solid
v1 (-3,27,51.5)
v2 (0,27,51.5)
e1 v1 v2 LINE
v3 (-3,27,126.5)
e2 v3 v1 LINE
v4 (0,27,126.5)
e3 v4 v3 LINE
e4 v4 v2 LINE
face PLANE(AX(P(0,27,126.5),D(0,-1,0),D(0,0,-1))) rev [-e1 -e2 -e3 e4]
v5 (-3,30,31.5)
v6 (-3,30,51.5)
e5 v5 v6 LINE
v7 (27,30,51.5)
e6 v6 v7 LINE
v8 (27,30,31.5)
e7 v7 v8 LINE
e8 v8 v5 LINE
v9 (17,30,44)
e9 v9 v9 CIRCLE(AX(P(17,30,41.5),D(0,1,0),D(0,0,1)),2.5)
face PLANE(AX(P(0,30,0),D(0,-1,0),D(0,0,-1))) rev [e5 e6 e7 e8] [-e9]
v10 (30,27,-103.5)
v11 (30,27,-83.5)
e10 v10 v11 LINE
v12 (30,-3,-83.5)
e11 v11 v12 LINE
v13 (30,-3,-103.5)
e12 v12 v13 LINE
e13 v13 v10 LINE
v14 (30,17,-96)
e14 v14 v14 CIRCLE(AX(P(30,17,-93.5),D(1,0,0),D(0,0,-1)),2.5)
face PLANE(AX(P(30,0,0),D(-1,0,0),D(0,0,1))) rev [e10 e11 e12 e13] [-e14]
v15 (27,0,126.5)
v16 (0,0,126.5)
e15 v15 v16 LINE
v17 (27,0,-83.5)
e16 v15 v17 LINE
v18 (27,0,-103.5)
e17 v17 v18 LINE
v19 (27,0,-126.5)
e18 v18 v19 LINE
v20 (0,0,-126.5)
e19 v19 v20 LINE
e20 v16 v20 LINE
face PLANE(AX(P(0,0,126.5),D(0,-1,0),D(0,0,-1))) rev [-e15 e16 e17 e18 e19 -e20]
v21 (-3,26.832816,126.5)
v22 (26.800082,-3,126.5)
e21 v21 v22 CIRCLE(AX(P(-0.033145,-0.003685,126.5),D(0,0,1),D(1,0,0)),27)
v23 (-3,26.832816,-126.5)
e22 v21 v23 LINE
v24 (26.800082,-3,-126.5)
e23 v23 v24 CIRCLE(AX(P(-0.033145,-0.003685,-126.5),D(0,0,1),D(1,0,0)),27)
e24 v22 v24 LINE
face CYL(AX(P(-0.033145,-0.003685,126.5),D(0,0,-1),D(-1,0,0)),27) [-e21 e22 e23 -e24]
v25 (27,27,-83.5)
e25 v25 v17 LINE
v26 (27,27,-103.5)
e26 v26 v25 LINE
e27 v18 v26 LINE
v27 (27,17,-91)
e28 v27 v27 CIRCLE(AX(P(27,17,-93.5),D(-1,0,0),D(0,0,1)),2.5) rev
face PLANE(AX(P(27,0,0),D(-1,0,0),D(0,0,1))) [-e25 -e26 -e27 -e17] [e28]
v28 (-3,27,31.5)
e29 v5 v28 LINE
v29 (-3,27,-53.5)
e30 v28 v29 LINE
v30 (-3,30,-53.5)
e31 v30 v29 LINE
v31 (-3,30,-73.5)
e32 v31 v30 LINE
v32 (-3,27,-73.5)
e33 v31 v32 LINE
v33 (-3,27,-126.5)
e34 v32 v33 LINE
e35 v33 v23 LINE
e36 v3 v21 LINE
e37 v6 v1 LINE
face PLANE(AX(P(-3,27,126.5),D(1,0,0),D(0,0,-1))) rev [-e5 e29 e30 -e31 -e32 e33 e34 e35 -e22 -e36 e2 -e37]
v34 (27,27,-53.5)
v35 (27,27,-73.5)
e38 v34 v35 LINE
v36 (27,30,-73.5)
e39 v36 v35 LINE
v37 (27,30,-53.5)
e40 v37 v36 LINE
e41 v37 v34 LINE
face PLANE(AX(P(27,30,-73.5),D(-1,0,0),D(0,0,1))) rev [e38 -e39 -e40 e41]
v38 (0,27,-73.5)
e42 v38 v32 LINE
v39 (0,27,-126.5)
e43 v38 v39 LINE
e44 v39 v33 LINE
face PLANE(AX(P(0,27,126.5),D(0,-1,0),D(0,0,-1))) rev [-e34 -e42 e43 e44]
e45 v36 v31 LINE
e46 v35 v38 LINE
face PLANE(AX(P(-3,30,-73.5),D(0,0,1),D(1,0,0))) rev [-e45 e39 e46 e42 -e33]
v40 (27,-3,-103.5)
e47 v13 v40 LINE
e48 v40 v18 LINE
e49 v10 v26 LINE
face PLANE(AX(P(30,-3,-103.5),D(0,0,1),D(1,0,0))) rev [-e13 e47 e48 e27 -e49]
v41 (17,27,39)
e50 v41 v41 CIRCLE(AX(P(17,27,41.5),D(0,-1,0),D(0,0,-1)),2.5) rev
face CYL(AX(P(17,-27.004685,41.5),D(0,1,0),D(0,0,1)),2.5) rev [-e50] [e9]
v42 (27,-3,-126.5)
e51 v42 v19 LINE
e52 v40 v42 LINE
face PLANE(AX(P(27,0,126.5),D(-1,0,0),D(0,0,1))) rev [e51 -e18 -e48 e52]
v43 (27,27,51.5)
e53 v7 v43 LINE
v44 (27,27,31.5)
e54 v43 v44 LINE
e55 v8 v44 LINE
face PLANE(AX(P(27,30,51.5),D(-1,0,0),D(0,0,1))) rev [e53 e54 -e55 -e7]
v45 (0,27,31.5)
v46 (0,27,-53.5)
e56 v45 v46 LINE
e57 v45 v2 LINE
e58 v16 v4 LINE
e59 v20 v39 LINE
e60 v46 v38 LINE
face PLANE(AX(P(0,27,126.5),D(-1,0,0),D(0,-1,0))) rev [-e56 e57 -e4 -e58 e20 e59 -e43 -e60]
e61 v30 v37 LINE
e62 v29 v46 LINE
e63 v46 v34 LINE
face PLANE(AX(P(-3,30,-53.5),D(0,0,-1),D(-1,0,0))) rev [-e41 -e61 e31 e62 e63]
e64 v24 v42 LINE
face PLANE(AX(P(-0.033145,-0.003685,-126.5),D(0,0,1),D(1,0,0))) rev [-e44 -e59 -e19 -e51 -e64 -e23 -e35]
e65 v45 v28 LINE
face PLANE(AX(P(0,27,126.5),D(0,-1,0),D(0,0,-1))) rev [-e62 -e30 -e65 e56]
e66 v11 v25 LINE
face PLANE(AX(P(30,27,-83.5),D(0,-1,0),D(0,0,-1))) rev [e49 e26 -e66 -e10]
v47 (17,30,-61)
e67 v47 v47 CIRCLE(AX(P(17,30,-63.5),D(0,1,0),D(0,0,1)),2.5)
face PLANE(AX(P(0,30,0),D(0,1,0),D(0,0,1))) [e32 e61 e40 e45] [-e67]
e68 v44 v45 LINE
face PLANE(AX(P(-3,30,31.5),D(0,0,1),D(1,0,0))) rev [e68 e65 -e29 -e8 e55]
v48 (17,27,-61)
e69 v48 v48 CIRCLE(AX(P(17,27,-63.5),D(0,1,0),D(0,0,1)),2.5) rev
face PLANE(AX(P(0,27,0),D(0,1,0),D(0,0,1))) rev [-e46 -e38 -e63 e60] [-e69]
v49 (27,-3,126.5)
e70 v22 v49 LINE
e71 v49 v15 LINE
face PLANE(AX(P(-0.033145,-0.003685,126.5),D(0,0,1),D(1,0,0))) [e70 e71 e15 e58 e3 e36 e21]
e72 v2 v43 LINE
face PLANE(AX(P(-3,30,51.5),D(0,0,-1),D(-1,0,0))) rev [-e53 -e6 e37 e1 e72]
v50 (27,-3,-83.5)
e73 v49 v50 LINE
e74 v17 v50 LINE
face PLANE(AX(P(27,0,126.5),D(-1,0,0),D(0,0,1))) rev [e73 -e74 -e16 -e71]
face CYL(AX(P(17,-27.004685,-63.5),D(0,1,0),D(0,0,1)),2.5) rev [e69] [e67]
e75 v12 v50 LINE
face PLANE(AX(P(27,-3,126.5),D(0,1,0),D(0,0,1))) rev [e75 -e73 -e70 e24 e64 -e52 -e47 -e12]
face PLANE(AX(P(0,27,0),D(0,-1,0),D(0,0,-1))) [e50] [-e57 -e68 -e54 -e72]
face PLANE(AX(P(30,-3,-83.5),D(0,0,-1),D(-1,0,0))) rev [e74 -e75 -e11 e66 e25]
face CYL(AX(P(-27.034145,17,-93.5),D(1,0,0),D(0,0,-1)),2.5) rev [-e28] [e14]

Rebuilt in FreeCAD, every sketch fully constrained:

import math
import FreeCAD as App
import Part
import Sketcher
from FreeCAD import Vector


def add_polygon(sketch, points):
    """Adds a closed chain of lines whose ends are joined by coincident constraints."""
    first, n = sketch.GeometryCount, len(points)
    for a, b in zip(points, points[1:] + points[:1]):
        sketch.addGeometry(Part.LineSegment(App.Vector(*a, 0), App.Vector(*b, 0)), False)
    for i in range(n):
        sketch.addConstraint(Sketcher.Constraint("Coincident", first + i, 2, first + (i + 1) % n, 1))

doc = App.newDocument("Part")
params = doc.addObject("Spreadsheet::Sheet", "Params")
for row, (alias, value) in enumerate([
    ("sketch1_radius", "27 mm"),
    ("sketch1_width", "27 mm"),
    ("sketch1_width2", "3 mm"),
    ("pad1_length", "253 mm"),
    ("sketch2_width", "30 mm"),
    ("sketch2_height", "20 mm"),
    ("pad2_length", "3 mm"),
    ("sketch3_diameter", "5 mm"),
    ("sketch4_width", "30 mm"),
    ("sketch4_height", "20 mm"),
    ("pad3_length", "3 mm"),
    ("sketch5_diameter", "5 mm"),
    ("sketch6_diameter", "5 mm"),
], start=1):
    params.set(f"A{row}", alias)
    params.set(f"B{row}", "=" + value)
    params.setAlias(f"B{row}", alias)

body = doc.addObject("PartDesign::Body", "Body")

sketch1 = body.newObject("Sketcher::SketchObject", "Sketch")
sketch1.AttachmentSupport = (doc.getObject("XY_Plane"), [""])
sketch1.MapMode = "FlatFace"
sketch1.addGeometry([
    Part.LineSegment(Vector(27, 0, 0), Vector(0, 0, 0)),
    Part.LineSegment(Vector(0, 0, 0), Vector(0, 27, 0)),
    Part.LineSegment(Vector(0, 27, 0), Vector(-3, 27, 0)),
    Part.LineSegment(Vector(-3, 27, 0), Vector(-3, 26.832816, 0)),
    Part.ArcOfCircle(Part.Circle(Vector(-0.033145, -0.003685, 0), Vector(0, 0, 1), 27), math.radians(96.308601), math.radians(353.628498)),
    Part.LineSegment(Vector(26.800082, -3, 0), Vector(27, -3, 0)),
    Part.LineSegment(Vector(27, -3, 0), Vector(27, 0, 0)),
], False)
sketch1.addConstraint([
    Sketcher.Constraint("Coincident", 0, 2, 1, 1),
    Sketcher.Constraint("Coincident", 1, 2, 2, 1),
    Sketcher.Constraint("Coincident", 2, 2, 3, 1),
    Sketcher.Constraint("Coincident", 3, 2, 4, 1),
    Sketcher.Constraint("Coincident", 4, 2, 5, 1),
    Sketcher.Constraint("Coincident", 5, 2, 6, 1),
    Sketcher.Constraint("Coincident", 6, 2, 0, 1),
    Sketcher.Constraint("Horizontal", 0),
    Sketcher.Constraint("Vertical", 1),
    Sketcher.Constraint("Horizontal", 2),
    Sketcher.Constraint("Vertical", 3),
    Sketcher.Constraint("Horizontal", 5),
    Sketcher.Constraint("Vertical", 6),
    Sketcher.Constraint("Coincident", 0, 2, -1, 1),
    Sketcher.Constraint("Equal", 0, 1),
    Sketcher.Constraint("Equal", 2, 6),
    Sketcher.Constraint("Radius", 4, 27.0),
    Sketcher.Constraint("DistanceX", 0, 2, 0, 1, 27.0),
    Sketcher.Constraint("DistanceX", 2, 2, 2, 1, 3.0),
    Sketcher.Constraint("DistanceY", 4, 3, 3, 2, 26.836501),
    Sketcher.Constraint("DistanceX", 5, 1, 5, 2, 0.199918),
])
sketch1.setExpression("Constraints[16]", "Params.sketch1_radius")
sketch1.setExpression("Constraints[17]", "Params.sketch1_width")
sketch1.setExpression("Constraints[18]", "Params.sketch1_width2")
pad1 = body.newObject("PartDesign::Pad", "Pad")
pad1.Profile = sketch1
pad1.setExpression("Length", "Params.pad1_length")
pad1.Midplane = True

sketch2 = body.newObject("Sketcher::SketchObject", "Sketch001")
sketch2.AttachmentSupport = (doc.getObject("YZ_Plane"), [""])
sketch2.MapMode = "FlatFace"
sketch2.AttachmentOffset = App.Placement(Vector(0, 0, 27), App.Rotation())
add_polygon(sketch2, [(27, -83.5), (-3, -83.5), (-3, -103.5), (27, -103.5)])
sketch2.addConstraint([
    Sketcher.Constraint("Horizontal", 0),
    Sketcher.Constraint("Vertical", 1),
    Sketcher.Constraint("Horizontal", 2),
    Sketcher.Constraint("Vertical", 3),
    Sketcher.Constraint("DistanceX", 0, 2, 0, 1, 30.0),
    Sketcher.Constraint("DistanceY", 1, 2, 1, 1, 20.0),
    Sketcher.Constraint("DistanceX", 0, 2, -1, 1, 3.0),
    Sketcher.Constraint("DistanceY", 0, 2, -1, 1, 83.5),
])
sketch2.setExpression("Constraints[8]", "Params.sketch2_width")
sketch2.setExpression("Constraints[9]", "Params.sketch2_height")
pad2 = body.newObject("PartDesign::Pad", "Pad001")
pad2.Profile = sketch2
pad2.setExpression("Length", "Params.pad2_length")

sketch3 = body.newObject("Sketcher::SketchObject", "Sketch002")
sketch3.AttachmentSupport = (doc.getObject("YZ_Plane"), [""])
sketch3.MapMode = "FlatFace"
sketch3.AttachmentOffset = App.Placement(Vector(0, 0, 30), App.Rotation())
sketch3.addGeometry(Part.Circle(Vector(17, -93.5, 0), Vector(0, 0, 1), 2.5), False)
sketch3.addConstraint([
    Sketcher.Constraint("Diameter", 0, 5.0),
    Sketcher.Constraint("DistanceX", -1, 1, 0, 3, 17.0),
    Sketcher.Constraint("DistanceY", 0, 3, -1, 1, 93.5),
])
sketch3.setExpression("Constraints[0]", "Params.sketch3_diameter")
pocket1 = body.newObject("PartDesign::Pocket", "Pocket")
pocket1.Profile = sketch3
pocket1.Type = "UpToFirst"

sketch4 = body.newObject("Sketcher::SketchObject", "Sketch003")
sketch4.AttachmentSupport = (doc.getObject("XZ_Plane"), [""])
sketch4.MapMode = "FlatFace"
sketch4.AttachmentOffset = App.Placement(Vector(0, 0, -27), App.Rotation())
add_polygon(sketch4, [(-3, -73.5), (-3, -53.5), (27, -53.5), (27, -73.5)])
add_polygon(sketch4, [(-3, 31.5), (-3, 51.5), (27, 51.5), (27, 31.5)])
sketch4.addConstraint([
    Sketcher.Constraint("Vertical", 0),
    Sketcher.Constraint("Horizontal", 1),
    Sketcher.Constraint("Vertical", 2),
    Sketcher.Constraint("Horizontal", 3),
    Sketcher.Constraint("Vertical", 4),
    Sketcher.Constraint("Horizontal", 5),
    Sketcher.Constraint("Vertical", 6),
    Sketcher.Constraint("Horizontal", 7),
    Sketcher.Constraint("Vertical", 3, 2, 4, 2),
    Sketcher.Constraint("Vertical", 2, 2, 5, 2),
    Sketcher.Constraint("Equal", 2, 4),
    Sketcher.Constraint("DistanceX", 1, 1, 1, 2, 30.0),
    Sketcher.Constraint("DistanceY", 0, 1, 0, 2, 20.0),
    Sketcher.Constraint("DistanceX", 0, 2, -1, 1, 3.0),
    Sketcher.Constraint("DistanceY", 0, 2, 4, 2, 105.0),
    Sketcher.Constraint("DistanceY", 0, 2, -1, 1, 53.5),
])
sketch4.setExpression("Constraints[19]", "Params.sketch4_width")
sketch4.setExpression("Constraints[20]", "Params.sketch4_height")
pad3 = body.newObject("PartDesign::Pad", "Pad002")
pad3.Profile = sketch4
pad3.setExpression("Length", "Params.pad3_length")
pad3.Reversed = True

sketch5 = body.newObject("Sketcher::SketchObject", "Sketch004")
sketch5.AttachmentSupport = (doc.getObject("XZ_Plane"), [""])
sketch5.MapMode = "FlatFace"
sketch5.AttachmentOffset = App.Placement(Vector(0, 0, -30), App.Rotation())
sketch5.addGeometry(Part.Circle(Vector(17, -63.5, 0), Vector(0, 0, 1), 2.5), False)
sketch5.addConstraint([
    Sketcher.Constraint("Diameter", 0, 5.0),
    Sketcher.Constraint("DistanceX", -1, 1, 0, 3, 17.0),
    Sketcher.Constraint("DistanceY", 0, 3, -1, 1, 63.5),
])
sketch5.setExpression("Constraints[0]", "Params.sketch5_diameter")
pocket2 = body.newObject("PartDesign::Pocket", "Pocket001")
pocket2.Profile = sketch5
pocket2.Type = "UpToFirst"
pocket2.Reversed = True

sketch6 = body.newObject("Sketcher::SketchObject", "Sketch005")
sketch6.AttachmentSupport = (doc.getObject("XZ_Plane"), [""])
sketch6.MapMode = "FlatFace"
sketch6.AttachmentOffset = App.Placement(Vector(0, 0, -30), App.Rotation())
sketch6.addGeometry(Part.Circle(Vector(17, 41.5, 0), Vector(0, 0, 1), 2.5), False)
sketch6.addConstraint([
    Sketcher.Constraint("Diameter", 0, 5.0),
    Sketcher.Constraint("DistanceX", -1, 1, 0, 3, 17.0),
    Sketcher.Constraint("DistanceY", -1, 1, 0, 3, 41.5),
])
sketch6.setExpression("Constraints[0]", "Params.sketch6_diameter")
pocket3 = body.newObject("PartDesign::Pocket", "Pocket002")
pocket3.Profile = sketch6
pocket3.Type = "UpToFirst"
pocket3.Reversed = True

doc.recompute()
